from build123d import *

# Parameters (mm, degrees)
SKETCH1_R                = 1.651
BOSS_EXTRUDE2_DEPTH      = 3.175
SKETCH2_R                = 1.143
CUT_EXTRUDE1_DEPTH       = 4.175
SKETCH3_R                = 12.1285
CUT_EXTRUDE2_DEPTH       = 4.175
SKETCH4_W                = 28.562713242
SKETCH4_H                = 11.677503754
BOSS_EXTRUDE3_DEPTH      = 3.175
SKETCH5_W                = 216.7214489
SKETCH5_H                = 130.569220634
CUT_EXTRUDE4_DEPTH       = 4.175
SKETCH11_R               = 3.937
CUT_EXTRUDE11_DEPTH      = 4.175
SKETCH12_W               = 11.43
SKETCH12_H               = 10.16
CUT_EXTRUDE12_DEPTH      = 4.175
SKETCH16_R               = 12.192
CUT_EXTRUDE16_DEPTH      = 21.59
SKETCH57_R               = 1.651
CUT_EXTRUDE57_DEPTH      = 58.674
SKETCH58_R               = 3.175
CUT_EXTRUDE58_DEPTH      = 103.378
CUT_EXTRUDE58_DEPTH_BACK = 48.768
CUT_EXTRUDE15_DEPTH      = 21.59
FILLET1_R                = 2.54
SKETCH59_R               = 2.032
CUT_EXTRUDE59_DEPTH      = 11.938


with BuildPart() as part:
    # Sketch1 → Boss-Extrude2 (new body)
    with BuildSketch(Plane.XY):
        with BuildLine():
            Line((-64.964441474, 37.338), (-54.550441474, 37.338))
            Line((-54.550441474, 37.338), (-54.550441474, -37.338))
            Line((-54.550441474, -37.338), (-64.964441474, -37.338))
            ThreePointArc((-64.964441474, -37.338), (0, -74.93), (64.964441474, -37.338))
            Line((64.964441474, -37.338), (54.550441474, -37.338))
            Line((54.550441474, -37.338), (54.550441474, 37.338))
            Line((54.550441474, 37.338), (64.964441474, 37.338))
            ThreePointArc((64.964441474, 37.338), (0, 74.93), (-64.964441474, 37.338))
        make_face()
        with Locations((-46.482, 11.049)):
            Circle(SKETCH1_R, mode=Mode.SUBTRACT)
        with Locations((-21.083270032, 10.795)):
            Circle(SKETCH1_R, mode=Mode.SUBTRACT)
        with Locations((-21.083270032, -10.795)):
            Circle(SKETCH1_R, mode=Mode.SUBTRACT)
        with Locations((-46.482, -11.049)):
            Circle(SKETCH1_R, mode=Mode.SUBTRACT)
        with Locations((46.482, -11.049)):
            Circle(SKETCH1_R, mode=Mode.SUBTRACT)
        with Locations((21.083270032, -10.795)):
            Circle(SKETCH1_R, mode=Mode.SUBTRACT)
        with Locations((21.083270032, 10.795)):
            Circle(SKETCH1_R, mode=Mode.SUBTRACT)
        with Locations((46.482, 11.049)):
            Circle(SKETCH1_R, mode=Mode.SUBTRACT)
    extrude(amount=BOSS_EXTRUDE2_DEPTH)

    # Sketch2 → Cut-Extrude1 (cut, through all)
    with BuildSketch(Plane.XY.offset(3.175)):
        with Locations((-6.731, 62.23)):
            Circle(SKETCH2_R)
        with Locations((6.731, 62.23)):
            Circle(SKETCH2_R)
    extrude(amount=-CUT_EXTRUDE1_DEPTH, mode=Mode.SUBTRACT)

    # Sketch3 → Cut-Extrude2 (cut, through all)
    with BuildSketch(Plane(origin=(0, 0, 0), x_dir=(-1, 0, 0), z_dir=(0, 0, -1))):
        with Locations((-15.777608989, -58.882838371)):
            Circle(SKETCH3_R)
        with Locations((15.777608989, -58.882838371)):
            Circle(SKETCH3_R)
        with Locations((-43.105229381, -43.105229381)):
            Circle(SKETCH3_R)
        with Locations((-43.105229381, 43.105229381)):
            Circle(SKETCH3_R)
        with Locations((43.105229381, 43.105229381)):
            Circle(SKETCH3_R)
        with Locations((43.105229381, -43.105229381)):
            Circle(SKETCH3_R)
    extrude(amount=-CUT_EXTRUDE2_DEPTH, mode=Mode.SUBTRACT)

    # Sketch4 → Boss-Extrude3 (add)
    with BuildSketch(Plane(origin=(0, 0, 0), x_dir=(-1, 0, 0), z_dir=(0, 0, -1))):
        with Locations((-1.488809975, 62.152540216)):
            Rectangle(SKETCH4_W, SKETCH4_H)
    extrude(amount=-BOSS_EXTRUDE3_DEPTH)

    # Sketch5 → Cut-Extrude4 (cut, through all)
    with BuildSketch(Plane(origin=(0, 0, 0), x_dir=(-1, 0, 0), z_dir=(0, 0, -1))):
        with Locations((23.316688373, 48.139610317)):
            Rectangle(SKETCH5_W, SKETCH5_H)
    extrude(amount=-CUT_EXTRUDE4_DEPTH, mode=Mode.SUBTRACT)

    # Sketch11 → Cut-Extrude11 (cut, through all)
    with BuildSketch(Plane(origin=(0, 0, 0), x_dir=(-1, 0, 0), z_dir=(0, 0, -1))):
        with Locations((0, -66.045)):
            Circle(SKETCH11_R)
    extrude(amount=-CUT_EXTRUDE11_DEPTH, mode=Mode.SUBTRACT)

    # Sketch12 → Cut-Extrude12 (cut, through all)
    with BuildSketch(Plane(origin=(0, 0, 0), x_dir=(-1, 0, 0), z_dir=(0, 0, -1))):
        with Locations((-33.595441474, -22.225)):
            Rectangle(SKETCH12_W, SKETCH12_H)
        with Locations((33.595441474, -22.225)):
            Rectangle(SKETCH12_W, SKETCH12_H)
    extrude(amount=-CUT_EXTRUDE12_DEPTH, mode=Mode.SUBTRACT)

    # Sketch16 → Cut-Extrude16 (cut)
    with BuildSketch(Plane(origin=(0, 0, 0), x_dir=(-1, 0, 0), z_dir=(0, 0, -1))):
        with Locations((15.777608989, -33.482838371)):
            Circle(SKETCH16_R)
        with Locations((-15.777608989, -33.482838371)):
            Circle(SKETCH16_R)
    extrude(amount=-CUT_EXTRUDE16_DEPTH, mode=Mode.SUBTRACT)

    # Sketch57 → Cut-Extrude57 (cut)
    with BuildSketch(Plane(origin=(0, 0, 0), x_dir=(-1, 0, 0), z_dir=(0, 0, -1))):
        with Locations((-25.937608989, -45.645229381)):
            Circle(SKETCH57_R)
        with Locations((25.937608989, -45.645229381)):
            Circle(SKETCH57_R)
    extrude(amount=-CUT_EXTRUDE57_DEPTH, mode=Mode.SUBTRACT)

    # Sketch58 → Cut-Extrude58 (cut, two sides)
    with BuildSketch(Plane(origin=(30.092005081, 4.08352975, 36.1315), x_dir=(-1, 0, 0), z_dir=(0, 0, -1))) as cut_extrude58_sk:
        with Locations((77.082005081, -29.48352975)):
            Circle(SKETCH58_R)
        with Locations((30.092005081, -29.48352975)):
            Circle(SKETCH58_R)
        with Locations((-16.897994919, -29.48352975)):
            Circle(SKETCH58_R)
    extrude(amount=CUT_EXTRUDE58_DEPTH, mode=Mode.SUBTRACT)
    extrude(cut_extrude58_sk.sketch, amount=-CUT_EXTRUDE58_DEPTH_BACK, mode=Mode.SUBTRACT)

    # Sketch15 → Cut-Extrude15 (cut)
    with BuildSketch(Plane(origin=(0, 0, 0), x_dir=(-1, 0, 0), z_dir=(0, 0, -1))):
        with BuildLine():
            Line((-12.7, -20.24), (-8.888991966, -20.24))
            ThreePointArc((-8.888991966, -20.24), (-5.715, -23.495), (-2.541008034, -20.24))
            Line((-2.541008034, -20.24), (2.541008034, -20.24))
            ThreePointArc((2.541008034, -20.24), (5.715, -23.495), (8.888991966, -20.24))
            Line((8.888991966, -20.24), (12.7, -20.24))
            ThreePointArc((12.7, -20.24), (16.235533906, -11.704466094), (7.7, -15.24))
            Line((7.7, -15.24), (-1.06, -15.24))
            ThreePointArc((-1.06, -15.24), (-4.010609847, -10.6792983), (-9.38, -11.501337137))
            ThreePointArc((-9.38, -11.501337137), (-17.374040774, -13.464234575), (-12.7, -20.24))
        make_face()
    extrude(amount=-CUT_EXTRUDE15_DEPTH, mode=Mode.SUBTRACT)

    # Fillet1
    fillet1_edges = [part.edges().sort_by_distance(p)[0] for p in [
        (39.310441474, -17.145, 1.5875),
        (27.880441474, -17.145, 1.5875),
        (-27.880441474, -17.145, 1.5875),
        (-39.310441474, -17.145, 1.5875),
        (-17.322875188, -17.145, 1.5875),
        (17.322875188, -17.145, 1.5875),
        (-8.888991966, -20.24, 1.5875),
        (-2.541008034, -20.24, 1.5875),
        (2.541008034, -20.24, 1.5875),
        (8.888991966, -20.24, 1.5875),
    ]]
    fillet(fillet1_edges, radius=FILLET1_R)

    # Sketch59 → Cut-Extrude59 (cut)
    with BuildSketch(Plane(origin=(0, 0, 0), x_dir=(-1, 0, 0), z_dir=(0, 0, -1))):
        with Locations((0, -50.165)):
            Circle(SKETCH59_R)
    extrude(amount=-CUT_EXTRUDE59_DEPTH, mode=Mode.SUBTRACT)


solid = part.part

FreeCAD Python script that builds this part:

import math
import FreeCAD as App
import Part
import Sketcher
Q = App.Units.Quantity


def edges_at(feature, points):
    """Names of the edges that pass closest to the given points."""
    edges = feature.Shape.Edges
    near = lambda p: min(range(len(edges)), key=lambda i: edges[i].distToShape(Part.Vertex(*p))[0])
    return sorted({f"Edge{near(p) + 1}" for p in points})


def add_polygon(sketch, points):
    """Adds a closed chain of lines whose ends are joined by coincident constraints."""
    first, n = sketch.GeometryCount, len(points)
    for a, b in zip(points, points[1:] + points[:1]):
        sketch.addGeometry(Part.LineSegment(App.Vector(*a, 0), App.Vector(*b, 0)), False)
    for i in range(n):
        sketch.addConstraint(Sketcher.Constraint("Coincident", first + i, 2, first + (i + 1) % n, 1))

doc = App.newDocument("Part")
body = doc.addObject("PartDesign::Body", "Body")

# Sketch on XY plane
sketch1 = body.newObject("Sketcher::SketchObject", "Sketch")
sketch1.AttachmentSupport = (doc.getObject("XY_Plane"), [""])
sketch1.MapMode = "FlatFace"
sketch1.addGeometry(Part.LineSegment(App.Vector(-65, 37.3, 0), App.Vector(-54.6, 37.3, 0)), False)
sketch1.addGeometry(Part.LineSegment(App.Vector(-54.6, 37.3, 0), App.Vector(-54.6, -37.3, 0)), False)
sketch1.addGeometry(Part.LineSegment(App.Vector(-54.6, -37.3, 0), App.Vector(-65, -37.3, 0)), False)
sketch1.addGeometry(Part.ArcOfCircle(Part.Circle(App.Vector(0, 0, 0), App.Vector(0, 0, 1), 74.9), math.radians(-150), math.radians(-30)), False)
sketch1.addGeometry(Part.LineSegment(App.Vector(65, -37.3, 0), App.Vector(54.6, -37.3, 0)), False)
sketch1.addGeometry(Part.LineSegment(App.Vector(54.6, -37.3, 0), App.Vector(54.6, 37.3, 0)), False)
sketch1.addGeometry(Part.LineSegment(App.Vector(54.6, 37.3, 0), App.Vector(65, 37.3, 0)), False)
sketch1.addGeometry(Part.ArcOfCircle(Part.Circle(App.Vector(0, 0, 0), App.Vector(0, 0, 1), 74.9), math.radians(30), math.radians(150)), False)
sketch1.addGeometry(Part.Circle(App.Vector(-46.5, -11, 0), App.Vector(0, 0, 1), 1.7), False)
sketch1.addGeometry(Part.Circle(App.Vector(-21.1, -10.8, 0), App.Vector(0, 0, 1), 1.7), False)
sketch1.addGeometry(Part.Circle(App.Vector(21.1, -10.8, 0), App.Vector(0, 0, 1), 1.7), False)
sketch1.addGeometry(Part.Circle(App.Vector(46.5, -11, 0), App.Vector(0, 0, 1), 1.7), False)
sketch1.addGeometry(Part.Circle(App.Vector(-46.5, 11, 0), App.Vector(0, 0, 1), 1.7), False)
sketch1.addGeometry(Part.Circle(App.Vector(-21.1, 10.8, 0), App.Vector(0, 0, 1), 1.7), False)
sketch1.addGeometry(Part.Circle(App.Vector(21.1, 10.8, 0), App.Vector(0, 0, 1), 1.7), False)
sketch1.addGeometry(Part.Circle(App.Vector(46.5, 11, 0), App.Vector(0, 0, 1), 1.7), False)
sketch1.addConstraint(Sketcher.Constraint("Coincident", 0, 2, 1, 1))
sketch1.addConstraint(Sketcher.Constraint("Coincident", 1, 2, 2, 1))
sketch1.addConstraint(Sketcher.Constraint("Coincident", 2, 2, 3, 1))
sketch1.addConstraint(Sketcher.Constraint("Coincident", 3, 2, 4, 1))
sketch1.addConstraint(Sketcher.Constraint("Coincident", 4, 2, 5, 1))
sketch1.addConstraint(Sketcher.Constraint("Coincident", 5, 2, 6, 1))
sketch1.addConstraint(Sketcher.Constraint("Coincident", 6, 2, 7, 1))
sketch1.addConstraint(Sketcher.Constraint("Coincident", 7, 2, 0, 1))
sketch1.addConstraint(Sketcher.Constraint("Horizontal", 0))
sketch1.addConstraint(Sketcher.Constraint("Vertical", 1))
sketch1.addConstraint(Sketcher.Constraint("Horizontal", 2))
sketch1.addConstraint(Sketcher.Constraint("Horizontal", 4))
sketch1.addConstraint(Sketcher.Constraint("Vertical", 5))
sketch1.addConstraint(Sketcher.Constraint("Horizontal", 6))
sketch1.addConstraint(Sketcher.Constraint("Coincident", 3, 3, -1, 1))
sketch1.addConstraint(Sketcher.Constraint("Coincident", 7, 3, -1, 1))
sketch1.addConstraint(Sketcher.Constraint("Equal", 3, 7))
sketch1.addConstraint(Sketcher.Constraint("Equal", 8, 9))
sketch1.addConstraint(Sketcher.Constraint("Equal", 9, 10))
sketch1.addConstraint(Sketcher.Constraint("Equal", 10, 11))
sketch1.addConstraint(Sketcher.Constraint("Equal", 11, 12))
sketch1.addConstraint(Sketcher.Constraint("Equal", 12, 13))
sketch1.addConstraint(Sketcher.Constraint("Equal", 13, 14))
sketch1.addConstraint(Sketcher.Constraint("Equal", 14, 15))
sketch1.addConstraint(Sketcher.Constraint("Symmetric", 11, 3, 12, 3, -1, 1))
sketch1.addConstraint(Sketcher.Constraint("Symmetric", 10, 3, 13, 3, -1, 1))
sketch1.addConstraint(Sketcher.Constraint("Symmetric", 9, 3, 14, 3, -1, 1))
sketch1.addConstraint(Sketcher.Constraint("Symmetric", 8, 3, 15, 3, -1, 1))
sketch1.addConstraint(Sketcher.Constraint("Symmetric", 0, 2, 4, 2, -1, 1))
sketch1.addConstraint(Sketcher.Constraint("Symmetric", 9, 3, 10, 3, -2))
sketch1.addConstraint(Sketcher.Constraint("Symmetric", 8, 3, 11, 3, -2))
sketch1.addConstraint(Sketcher.Constraint("Horizontal", 2, 2, 3, 2))
sketch1.addConstraint(Sketcher.Constraint("Horizontal", 0, 2, 5, 2))
sketch1.addConstraint(Sketcher.Constraint("Diameter", 8, Q("0.13 in")))
sketch1.addConstraint(Sketcher.Constraint("Radius", 3, Q("2.95 in")))
sketch1.addConstraint(Sketcher.Constraint("DistanceX", 0, 1, 0, 2, Q("0.41 in")))
sketch1.addConstraint(Sketcher.Constraint("DistanceY", 1, 2, 1, 1, Q("2.94 in")))
sketch1.addConstraint(Sketcher.Constraint("DistanceX", 8, 3, -1, 1, Q("1.83 in")))
sketch1.addConstraint(Sketcher.Constraint("DistanceY", 8, 3, 9, 3, Q("0.01 in")))
sketch1.addConstraint(Sketcher.Constraint("DistanceY", 8, 3, 12, 3, Q("0.87 in")))
sketch1.addConstraint(Sketcher.Constraint("DistanceX", 9, 3, 10, 3, Q("1.6601 in")))
pad1 = body.newObject("PartDesign::Pad", "Pad")
pad1.Profile = sketch1
pad1.Length = Q("0.125 in")

# Sketch on XY plane
sketch2 = body.newObject("Sketcher::SketchObject", "Sketch001")
sketch2.AttachmentSupport = (doc.getObject("XY_Plane"), [""])
sketch2.MapMode = "FlatFace"
sketch2.AttachmentOffset = App.Placement(App.Vector(0, 0, 0.125 * 25.4), App.Rotation())
sketch2.addGeometry(Part.Circle(App.Vector(-6.7, 62.2, 0), App.Vector(0, 0, 1), 1.1), False)
sketch2.addGeometry(Part.Circle(App.Vector(6.7, 62.2, 0), App.Vector(0, 0, 1), 1.1), False)
sketch2.addConstraint(Sketcher.Constraint("Equal", 0, 1))
sketch2.addConstraint(Sketcher.Constraint("Symmetric", 0, 3, 1, 3, -2))
sketch2.addConstraint(Sketcher.Constraint("Diameter", 0, Q("0.09 in")))
sketch2.addConstraint(Sketcher.Constraint("DistanceY", -1, 1, 0, 3, Q("2.45 in")))
sketch2.addConstraint(Sketcher.Constraint("DistanceX", 0, 3, 1, 3, Q("0.53 in")))
pocket1 = body.newObject("PartDesign::Pocket", "Pocket")
pocket1.Profile = sketch2
pocket1.Type = "ThroughAll"

# Sketch on XY plane
sketch3 = body.newObject("Sketcher::SketchObject", "Sketch002")
sketch3.AttachmentSupport = (doc.getObject("XY_Plane"), [""])
sketch3.MapMode = "FlatFace"
sketch3.addGeometry(Part.Circle(App.Vector(16, -59, 0), App.Vector(0, 0, 1), 12), False)
sketch3.addGeometry(Part.Circle(App.Vector(-16, -59, 0), App.Vector(0, 0, 1), 12), False)
sketch3.addGeometry(Part.Circle(App.Vector(43, -43, 0), App.Vector(0, 0, 1), 12), False)
sketch3.addGeometry(Part.Circle(App.Vector(43, 43, 0), App.Vector(0, 0, 1), 12), False)
sketch3.addGeometry(Part.Circle(App.Vector(-43, 43, 0), App.Vector(0, 0, 1), 12), False)
sketch3.addGeometry(Part.Circle(App.Vector(-43, -43, 0), App.Vector(0, 0, 1), 12), False)
sketch3.addConstraint(Sketcher.Constraint("Equal", 0, 1))
sketch3.addConstraint(Sketcher.Constraint("Equal", 1, 2))
sketch3.addConstraint(Sketcher.Constraint("Equal", 2, 3))
sketch3.addConstraint(Sketcher.Constraint("Equal", 3, 4))
sketch3.addConstraint(Sketcher.Constraint("Equal", 4, 5))
sketch3.addConstraint(Sketcher.Constraint("Symmetric", 2, 3, 4, 3, -1, 1))
sketch3.addConstraint(Sketcher.Constraint("Symmetric", 3, 3, 5, 3, -1, 1))
sketch3.addConstraint(Sketcher.Constraint("Symmetric", 0, 3, 1, 3, -2))
sketch3.addConstraint(Sketcher.Constraint("Symmetric", 3, 3, 4, 3, -2))
sketch3.addConstraint(Sketcher.Constraint("Diameter", 0, Q("0.955 in")))
sketch3.addConstraint(Sketcher.Constraint("DistanceX", -1, 1, 0, 3, Q("15.777609 mm")))
sketch3.addConstraint(Sketcher.Constraint("DistanceY", 0, 3, -1, 1, Q("58.882838 mm")))
sketch3.addConstraint(Sketcher.Constraint("DistanceX", -1, 1, 2, 3, Q("43.105229 mm")))
sketch3.addConstraint(Sketcher.Constraint("DistanceY", 2, 3, -1, 1, Q("43.105229 mm")))
pocket2 = body.newObject("PartDesign::Pocket", "Pocket001")
pocket2.Profile = sketch3
pocket2.Type = "ThroughAll"
pocket2.Reversed = True

# Sketch on XY plane
sketch4 = body.newObject("Sketcher::SketchObject", "Sketch003")
sketch4.AttachmentSupport = (doc.getObject("XY_Plane"), [""])
sketch4.MapMode = "FlatFace"
add_polygon(sketch4, [(16, 68), (16, 56), (-13, 56), (-13, 68)])  # lines 0-3
sketch4.addConstraint(Sketcher.Constraint("Vertical", 0))
sketch4.addConstraint(Sketcher.Constraint("Horizontal", 1))
sketch4.addConstraint(Sketcher.Constraint("Vertical", 2))
sketch4.addConstraint(Sketcher.Constraint("Horizontal", 3))
sketch4.addConstraint(Sketcher.Constraint("DistanceX", 1, 2, 1, 1, Q("28.562713 mm")))
sketch4.addConstraint(Sketcher.Constraint("DistanceY", 0, 2, 0, 1, Q("11.677504 mm")))
sketch4.addConstraint(Sketcher.Constraint("DistanceY", -1, 1, 0, 2, Q("56.313788 mm")))
sketch4.addConstraint(Sketcher.Constraint("DistanceX", -1, 1, 0, 2, Q("15.770167 mm")))
pad2 = body.newObject("PartDesign::Pad", "Pad001")
pad2.Profile = sketch4
pad2.Length = Q("0.125 in")

# Sketch on XY plane
sketch5 = body.newObject("Sketcher::SketchObject", "Sketch004")
sketch5.AttachmentSupport = (doc.getObject("XY_Plane"), [""])
sketch5.MapMode = "FlatFace"
add_polygon(sketch5, [(85, 113), (85, -17), (-132, -17), (-132, 113)])  # lines 0-3
sketch5.addConstraint(Sketcher.Constraint("Vertical", 0))
sketch5.addConstraint(Sketcher.Constraint("Horizontal", 1))
sketch5.addConstraint(Sketcher.Constraint("Vertical", 2))
sketch5.addConstraint(Sketcher.Constraint("Horizontal", 3))
sketch5.addConstraint(Sketcher.Constraint("DistanceY", 0, 2, -1, 1, Q("0.675 in")))
sketch5.addConstraint(Sketcher.Constraint("DistanceX", 1, 2, 1, 1, Q("216.721449 mm")))
sketch5.addConstraint(Sketcher.Constraint("DistanceY", 0, 2, 0, 1, Q("130.569221 mm")))
sketch5.addConstraint(Sketcher.Constraint("DistanceX", -1, 1, 0, 2, Q("85.044036 mm")))
pocket3 = body.newObject("PartDesign::Pocket", "Pocket002")
pocket3.Profile = sketch5
pocket3.Type = "ThroughAll"
pocket3.Reversed = True

# Sketch on XY plane
sketch6 = body.newObject("Sketcher::SketchObject", "Sketch005")
sketch6.AttachmentSupport = (doc.getObject("XY_Plane"), [""])
sketch6.MapMode = "FlatFace"
sketch6.addGeometry(Part.Circle(App.Vector(0, -66, 0), App.Vector(0, 0, 1), 3.9), False)
sketch6.addConstraint(Sketcher.Constraint("PointOnObject", 0, 3, -2))
sketch6.addConstraint(Sketcher.Constraint("Diameter", 0, Q("0.31 in")))
sketch6.addConstraint(Sketcher.Constraint("DistanceY", 0, 3, -1, 1, Q("66.045 mm")))
pocket4 = body.newObject("PartDesign::Pocket", "Pocket003")
pocket4.Profile = sketch6
pocket4.Type = "ThroughAll"
pocket4.Reversed = True

# Sketch on XY plane
sketch7 = body.newObject("Sketcher::SketchObject", "Sketch006")
sketch7.AttachmentSupport = (doc.getObject("XY_Plane"), [""])
sketch7.MapMode = "FlatFace"
add_polygon(sketch7, [(39, -17), (39, -27), (28, -27), (28, -17)])  # lines 0-3
add_polygon(sketch7, [(-28, -17), (-28, -27), (-39, -27), (-39, -17)])  # lines 4-7
sketch7.addConstraint(Sketcher.Constraint("Vertical", 0))
sketch7.addConstraint(Sketcher.Constraint("Horizontal", 1))
sketch7.addConstraint(Sketcher.Constraint("Vertical", 2))
sketch7.addConstraint(Sketcher.Constraint("Horizontal", 3))
sketch7.addConstraint(Sketcher.Constraint("Vertical", 4))
sketch7.addConstraint(Sketcher.Constraint("Horizontal", 5))
sketch7.addConstraint(Sketcher.Constraint("Vertical", 6))
sketch7.addConstraint(Sketcher.Constraint("Horizontal", 7))
sketch7.addConstraint(Sketcher.Constraint("Symmetric", 1, 2, 4, 2, -2))
sketch7.addConstraint(Sketcher.Constraint("Symmetric", 3, 2, 6, 2, -2))
sketch7.addConstraint(Sketcher.Constraint("DistanceY", 0, 2, 0, 1, Q("0.4 in")))
sketch7.addConstraint(Sketcher.Constraint("DistanceX", 1, 2, 1, 1, Q("0.45 in")))
sketch7.addConstraint(Sketcher.Constraint("DistanceY", 0, 2, -1, 1, Q("1.075 in")))
sketch7.addConstraint(Sketcher.Constraint("DistanceX", -1, 1, 0, 2, Q("39.310441 mm")))
pocket5 = body.newObject("PartDesign::Pocket", "Pocket004")
pocket5.Profile = sketch7
pocket5.Type = "ThroughAll"
pocket5.Reversed = True

# Sketch on XY plane
sketch8 = body.newObject("Sketcher::SketchObject", "Sketch007")
sketch8.AttachmentSupport = (doc.getObject("XY_Plane"), [""])
sketch8.MapMode = "FlatFace"
sketch8.addGeometry(Part.Circle(App.Vector(-16, -33, 0), App.Vector(0, 0, 1), 12), False)
sketch8.addGeometry(Part.Circle(App.Vector(16, -33, 0), App.Vector(0, 0, 1), 12), False)
sketch8.addConstraint(Sketcher.Constraint("Equal", 0, 1))
sketch8.addConstraint(Sketcher.Constraint("Symmetric", 0, 3, 1, 3, -2))
sketch8.addConstraint(Sketcher.Constraint("Diameter", 0, Q("0.96 in")))
sketch8.addConstraint(Sketcher.Constraint("DistanceX", 0, 3, -1, 1, Q("15.777609 mm")))
sketch8.addConstraint(Sketcher.Constraint("DistanceY", 0, 3, -1, 1, Q("33.482838 mm")))
pocket6 = body.newObject("PartDesign::Pocket", "Pocket005")
pocket6.Profile = sketch8
pocket6.Length = Q("0.85 in")
pocket6.Reversed = True

# Sketch on XY plane
sketch9 = body.newObject("Sketcher::SketchObject", "Sketch008")
sketch9.AttachmentSupport = (doc.getObject("XY_Plane"), [""])
sketch9.MapMode = "FlatFace"
sketch9.addGeometry(Part.Circle(App.Vector(25.9, -45.6, 0), App.Vector(0, 0, 1), 1.7), False)
sketch9.addGeometry(Part.Circle(App.Vector(-25.9, -45.6, 0), App.Vector(0, 0, 1), 1.7), False)
sketch9.addConstraint(Sketcher.Constraint("Equal", 0, 1))
sketch9.addConstraint(Sketcher.Constraint("Symmetric", 0, 3, 1, 3, -2))
sketch9.addConstraint(Sketcher.Constraint("Diameter", 0, Q("0.13 in")))
sketch9.addConstraint(Sketcher.Constraint("DistanceX", -1, 1, 0, 3, Q("25.937609 mm")))
sketch9.addConstraint(Sketcher.Constraint("DistanceY", 0, 3, -1, 1, Q("45.645229 mm")))
pocket7 = body.newObject("PartDesign::Pocket", "Pocket006")
pocket7.Profile = sketch9
pocket7.Length = Q("2.31 in")
pocket7.Reversed = True

# Sketch on XY plane
sketch10 = body.newObject("Sketcher::SketchObject", "Sketch009")
sketch10.AttachmentSupport = (doc.getObject("XY_Plane"), [""])
sketch10.MapMode = "FlatFace"
sketch10.AttachmentOffset = App.Placement(App.Vector(0, 0, 1.4225 * 25.4), App.Rotation())
sketch10.addGeometry(Part.Circle(App.Vector(-47, -25.4, 0), App.Vector(0, 0, 1), 3.2), False)
sketch10.addGeometry(Part.Circle(App.Vector(0, -25.4, 0), App.Vector(0, 0, 1), 3.2), False)
sketch10.addGeometry(Part.Circle(App.Vector(47, -25.4, 0), App.Vector(0, 0, 1), 3.2), False)
sketch10.addConstraint(Sketcher.Constraint("Equal", 0, 1))
sketch10.addConstraint(Sketcher.Constraint("Equal", 1, 2))
sketch10.addConstraint(Sketcher.Constraint("Symmetric", 0, 3, 2, 3, -2))
sketch10.addConstraint(Sketcher.Constraint("PointOnObject", 1, 3, -2))
sketch10.addConstraint(Sketcher.Constraint("Horizontal", 0, 3, 1, 3))
sketch10.addConstraint(Sketcher.Constraint("Diameter", 0, Q("0.25 in")))
sketch10.addConstraint(Sketcher.Constraint("DistanceY", 0, 3, -1, 1, Q("1 in")))
sketch10.addConstraint(Sketcher.Constraint("DistanceX", 0, 3, 2, 3, Q("3.7 in")))
pocket8 = body.newObject("PartDesign::Pocket", "Pocket007")
pocket8.Profile = sketch10
pocket8.Type = "ThroughAll"
pocket8.Midplane = True

# Sketch on XY plane
sketch11 = body.newObject("Sketcher::SketchObject", "Sketch010")
sketch11.AttachmentSupport = (doc.getObject("XY_Plane"), [""])
sketch11.MapMode = "FlatFace"
sketch11.addGeometry(Part.LineSegment(App.Vector(12.7, -20.2, 0), App.Vector(8.9, -20.2, 0)), False)
sketch11.addGeometry(Part.ArcOfCircle(Part.Circle(App.Vector(5.7, -20.3, 0), App.Vector(0, 0, 1), 3.2), math.radians(179), math.radians(361)), False)
sketch11.addGeometry(Part.LineSegment(App.Vector(2.5, -20.2, 0), App.Vector(-2.5, -20.2, 0)), False)
sketch11.addGeometry(Part.ArcOfCircle(Part.Circle(App.Vector(-5.7, -20.3, 0), App.Vector(0, 0, 1), 3.2), math.radians(179), math.radians(361)), False)
sketch11.addGeometry(Part.LineSegment(App.Vector(-8.9, -20.2, 0), App.Vector(-12.7, -20.2, 0)), False)
sketch11.addGeometry(Part.ArcOfCircle(Part.Circle(App.Vector(-12.7, -15.2, 0), App.Vector(0, 0, 1), 5), math.radians(0), math.radians(270)), False)
sketch11.addGeometry(Part.LineSegment(App.Vector(-7.7, -15.2, 0), App.Vector(1.1, -15.2, 0)), False)
sketch11.addGeometry(Part.ArcOfCircle(Part.Circle(App.Vector(6.1, -15.2, 0), App.Vector(0, 0, 1), 5), math.radians(48), math.radians(180)), False)
sketch11.addGeometry(Part.ArcOfCircle(Part.Circle(App.Vector(12.7, -15.2, 0), App.Vector(0, 0, 1), 5), math.radians(-90), math.radians(132)), False)
sketch11.addConstraint(Sketcher.Constraint("Coincident", 0, 2, 1, 2))
sketch11.addConstraint(Sketcher.Constraint("Coincident", 1, 1, 2, 1))
sketch11.addConstraint(Sketcher.Constraint("Coincident", 2, 2, 3, 2))
sketch11.addConstraint(Sketcher.Constraint("Coincident", 3, 1, 4, 1))
sketch11.addConstraint(Sketcher.Constraint("Tangent", 4, 2, 5, 2))
sketch11.addConstraint(Sketcher.Constraint("Coincident", 5, 1, 6, 1))
sketch11.addConstraint(Sketcher.Constraint("Coincident", 6, 2, 7, 2))
sketch11.addConstraint(Sketcher.Constraint("Coincident", 7, 1, 8, 2))
sketch11.addConstraint(Sketcher.Constraint("Tangent", 8, 1, 0, 1))
sketch11.addConstraint(Sketcher.Constraint("Horizontal", 0))
sketch11.addConstraint(Sketcher.Constraint("Horizontal", 2))
sketch11.addConstraint(Sketcher.Constraint("Horizontal", 4))
sketch11.addConstraint(Sketcher.Constraint("Horizontal", 6))
sketch11.addConstraint(Sketcher.Constraint("Equal", 1, 3))
sketch11.addConstraint(Sketcher.Constraint("Equal", 5, 7))
sketch11.addConstraint(Sketcher.Constraint("Equal", 7, 8))
sketch11.addConstraint(Sketcher.Constraint("Symmetric", 1, 3, 3, 3, -2))
sketch11.addConstraint(Sketcher.Constraint("Symmetric", 5, 3, 8, 3, -2))
sketch11.addConstraint(Sketcher.Constraint("Horizontal", 5, 3, 7, 3))
sketch11.addConstraint(Sketcher.Constraint("Horizontal", 0, 2, 1, 1))
sketch11.addConstraint(Sketcher.Constraint("Horizontal", 8, 3, 5, 1))
sketch11.addConstraint(Sketcher.Constraint("Radius", 1, Q("0.125 in")))
sketch11.addConstraint(Sketcher.Constraint("DistanceX", 5, 3, 8, 3, Q("1 in")))
sketch11.addConstraint(Sketcher.Constraint("DistanceY", 1, 3, -1, 1, Q("0.8 in")))
sketch11.addConstraint(Sketcher.Constraint("DistanceY", 5, 3, -1, 1, Q("0.6 in")))
sketch11.addConstraint(Sketcher.Constraint("Radius", 5, Q("5 mm")))
sketch11.addConstraint(Sketcher.Constraint("DistanceX", 3, 3, 1, 3, Q("0.45 in")))
sketch11.addConstraint(Sketcher.Constraint("DistanceX", 6, 1, 6, 2, Q("8.76 mm")))
pocket9 = body.newObject("PartDesign::Pocket", "Pocket008")
pocket9.Profile = sketch11
pocket9.Length = Q("0.85 in")
pocket9.Reversed = True
doc.recompute()

fillet = body.newObject("PartDesign::Fillet", "Fillet")
fillet.Base = (pocket9, edges_at(pocket9, [
    (39.31, -17.145, 1.587),
    (27.88, -17.145, 1.587),
    (-27.88, -17.145, 1.587),
    (-39.31, -17.145, 1.587),
    (-17.323, -17.145, 1.587),
    (17.323, -17.145, 1.587),
    (-8.889, -20.24, 1.587),
    (-2.541, -20.24, 1.587),
    (2.541, -20.24, 1.587),
    (8.889, -20.24, 1.587),
]))
fillet.Radius = Q("0.1 in")

# Sketch on XY plane
sketch12 = body.newObject("Sketcher::SketchObject", "Sketch011")
sketch12.AttachmentSupport = (doc.getObject("XY_Plane"), [""])
sketch12.MapMode = "FlatFace"
sketch12.addGeometry(Part.Circle(App.Vector(0, -50.2, 0), App.Vector(0, 0, 1), 2), False)
sketch12.addConstraint(Sketcher.Constraint("PointOnObject", 0, 3, -2))
sketch12.addConstraint(Sketcher.Constraint("Diameter", 0, Q("0.16 in")))
sketch12.addConstraint(Sketcher.Constraint("DistanceY", 0, 3, -1, 1, Q("1.975 in")))
pocket10 = body.newObject("PartDesign::Pocket", "Pocket009")
pocket10.Profile = sketch12
pocket10.Length = Q("0.47 in")
pocket10.Reversed = True

doc.recompute()
